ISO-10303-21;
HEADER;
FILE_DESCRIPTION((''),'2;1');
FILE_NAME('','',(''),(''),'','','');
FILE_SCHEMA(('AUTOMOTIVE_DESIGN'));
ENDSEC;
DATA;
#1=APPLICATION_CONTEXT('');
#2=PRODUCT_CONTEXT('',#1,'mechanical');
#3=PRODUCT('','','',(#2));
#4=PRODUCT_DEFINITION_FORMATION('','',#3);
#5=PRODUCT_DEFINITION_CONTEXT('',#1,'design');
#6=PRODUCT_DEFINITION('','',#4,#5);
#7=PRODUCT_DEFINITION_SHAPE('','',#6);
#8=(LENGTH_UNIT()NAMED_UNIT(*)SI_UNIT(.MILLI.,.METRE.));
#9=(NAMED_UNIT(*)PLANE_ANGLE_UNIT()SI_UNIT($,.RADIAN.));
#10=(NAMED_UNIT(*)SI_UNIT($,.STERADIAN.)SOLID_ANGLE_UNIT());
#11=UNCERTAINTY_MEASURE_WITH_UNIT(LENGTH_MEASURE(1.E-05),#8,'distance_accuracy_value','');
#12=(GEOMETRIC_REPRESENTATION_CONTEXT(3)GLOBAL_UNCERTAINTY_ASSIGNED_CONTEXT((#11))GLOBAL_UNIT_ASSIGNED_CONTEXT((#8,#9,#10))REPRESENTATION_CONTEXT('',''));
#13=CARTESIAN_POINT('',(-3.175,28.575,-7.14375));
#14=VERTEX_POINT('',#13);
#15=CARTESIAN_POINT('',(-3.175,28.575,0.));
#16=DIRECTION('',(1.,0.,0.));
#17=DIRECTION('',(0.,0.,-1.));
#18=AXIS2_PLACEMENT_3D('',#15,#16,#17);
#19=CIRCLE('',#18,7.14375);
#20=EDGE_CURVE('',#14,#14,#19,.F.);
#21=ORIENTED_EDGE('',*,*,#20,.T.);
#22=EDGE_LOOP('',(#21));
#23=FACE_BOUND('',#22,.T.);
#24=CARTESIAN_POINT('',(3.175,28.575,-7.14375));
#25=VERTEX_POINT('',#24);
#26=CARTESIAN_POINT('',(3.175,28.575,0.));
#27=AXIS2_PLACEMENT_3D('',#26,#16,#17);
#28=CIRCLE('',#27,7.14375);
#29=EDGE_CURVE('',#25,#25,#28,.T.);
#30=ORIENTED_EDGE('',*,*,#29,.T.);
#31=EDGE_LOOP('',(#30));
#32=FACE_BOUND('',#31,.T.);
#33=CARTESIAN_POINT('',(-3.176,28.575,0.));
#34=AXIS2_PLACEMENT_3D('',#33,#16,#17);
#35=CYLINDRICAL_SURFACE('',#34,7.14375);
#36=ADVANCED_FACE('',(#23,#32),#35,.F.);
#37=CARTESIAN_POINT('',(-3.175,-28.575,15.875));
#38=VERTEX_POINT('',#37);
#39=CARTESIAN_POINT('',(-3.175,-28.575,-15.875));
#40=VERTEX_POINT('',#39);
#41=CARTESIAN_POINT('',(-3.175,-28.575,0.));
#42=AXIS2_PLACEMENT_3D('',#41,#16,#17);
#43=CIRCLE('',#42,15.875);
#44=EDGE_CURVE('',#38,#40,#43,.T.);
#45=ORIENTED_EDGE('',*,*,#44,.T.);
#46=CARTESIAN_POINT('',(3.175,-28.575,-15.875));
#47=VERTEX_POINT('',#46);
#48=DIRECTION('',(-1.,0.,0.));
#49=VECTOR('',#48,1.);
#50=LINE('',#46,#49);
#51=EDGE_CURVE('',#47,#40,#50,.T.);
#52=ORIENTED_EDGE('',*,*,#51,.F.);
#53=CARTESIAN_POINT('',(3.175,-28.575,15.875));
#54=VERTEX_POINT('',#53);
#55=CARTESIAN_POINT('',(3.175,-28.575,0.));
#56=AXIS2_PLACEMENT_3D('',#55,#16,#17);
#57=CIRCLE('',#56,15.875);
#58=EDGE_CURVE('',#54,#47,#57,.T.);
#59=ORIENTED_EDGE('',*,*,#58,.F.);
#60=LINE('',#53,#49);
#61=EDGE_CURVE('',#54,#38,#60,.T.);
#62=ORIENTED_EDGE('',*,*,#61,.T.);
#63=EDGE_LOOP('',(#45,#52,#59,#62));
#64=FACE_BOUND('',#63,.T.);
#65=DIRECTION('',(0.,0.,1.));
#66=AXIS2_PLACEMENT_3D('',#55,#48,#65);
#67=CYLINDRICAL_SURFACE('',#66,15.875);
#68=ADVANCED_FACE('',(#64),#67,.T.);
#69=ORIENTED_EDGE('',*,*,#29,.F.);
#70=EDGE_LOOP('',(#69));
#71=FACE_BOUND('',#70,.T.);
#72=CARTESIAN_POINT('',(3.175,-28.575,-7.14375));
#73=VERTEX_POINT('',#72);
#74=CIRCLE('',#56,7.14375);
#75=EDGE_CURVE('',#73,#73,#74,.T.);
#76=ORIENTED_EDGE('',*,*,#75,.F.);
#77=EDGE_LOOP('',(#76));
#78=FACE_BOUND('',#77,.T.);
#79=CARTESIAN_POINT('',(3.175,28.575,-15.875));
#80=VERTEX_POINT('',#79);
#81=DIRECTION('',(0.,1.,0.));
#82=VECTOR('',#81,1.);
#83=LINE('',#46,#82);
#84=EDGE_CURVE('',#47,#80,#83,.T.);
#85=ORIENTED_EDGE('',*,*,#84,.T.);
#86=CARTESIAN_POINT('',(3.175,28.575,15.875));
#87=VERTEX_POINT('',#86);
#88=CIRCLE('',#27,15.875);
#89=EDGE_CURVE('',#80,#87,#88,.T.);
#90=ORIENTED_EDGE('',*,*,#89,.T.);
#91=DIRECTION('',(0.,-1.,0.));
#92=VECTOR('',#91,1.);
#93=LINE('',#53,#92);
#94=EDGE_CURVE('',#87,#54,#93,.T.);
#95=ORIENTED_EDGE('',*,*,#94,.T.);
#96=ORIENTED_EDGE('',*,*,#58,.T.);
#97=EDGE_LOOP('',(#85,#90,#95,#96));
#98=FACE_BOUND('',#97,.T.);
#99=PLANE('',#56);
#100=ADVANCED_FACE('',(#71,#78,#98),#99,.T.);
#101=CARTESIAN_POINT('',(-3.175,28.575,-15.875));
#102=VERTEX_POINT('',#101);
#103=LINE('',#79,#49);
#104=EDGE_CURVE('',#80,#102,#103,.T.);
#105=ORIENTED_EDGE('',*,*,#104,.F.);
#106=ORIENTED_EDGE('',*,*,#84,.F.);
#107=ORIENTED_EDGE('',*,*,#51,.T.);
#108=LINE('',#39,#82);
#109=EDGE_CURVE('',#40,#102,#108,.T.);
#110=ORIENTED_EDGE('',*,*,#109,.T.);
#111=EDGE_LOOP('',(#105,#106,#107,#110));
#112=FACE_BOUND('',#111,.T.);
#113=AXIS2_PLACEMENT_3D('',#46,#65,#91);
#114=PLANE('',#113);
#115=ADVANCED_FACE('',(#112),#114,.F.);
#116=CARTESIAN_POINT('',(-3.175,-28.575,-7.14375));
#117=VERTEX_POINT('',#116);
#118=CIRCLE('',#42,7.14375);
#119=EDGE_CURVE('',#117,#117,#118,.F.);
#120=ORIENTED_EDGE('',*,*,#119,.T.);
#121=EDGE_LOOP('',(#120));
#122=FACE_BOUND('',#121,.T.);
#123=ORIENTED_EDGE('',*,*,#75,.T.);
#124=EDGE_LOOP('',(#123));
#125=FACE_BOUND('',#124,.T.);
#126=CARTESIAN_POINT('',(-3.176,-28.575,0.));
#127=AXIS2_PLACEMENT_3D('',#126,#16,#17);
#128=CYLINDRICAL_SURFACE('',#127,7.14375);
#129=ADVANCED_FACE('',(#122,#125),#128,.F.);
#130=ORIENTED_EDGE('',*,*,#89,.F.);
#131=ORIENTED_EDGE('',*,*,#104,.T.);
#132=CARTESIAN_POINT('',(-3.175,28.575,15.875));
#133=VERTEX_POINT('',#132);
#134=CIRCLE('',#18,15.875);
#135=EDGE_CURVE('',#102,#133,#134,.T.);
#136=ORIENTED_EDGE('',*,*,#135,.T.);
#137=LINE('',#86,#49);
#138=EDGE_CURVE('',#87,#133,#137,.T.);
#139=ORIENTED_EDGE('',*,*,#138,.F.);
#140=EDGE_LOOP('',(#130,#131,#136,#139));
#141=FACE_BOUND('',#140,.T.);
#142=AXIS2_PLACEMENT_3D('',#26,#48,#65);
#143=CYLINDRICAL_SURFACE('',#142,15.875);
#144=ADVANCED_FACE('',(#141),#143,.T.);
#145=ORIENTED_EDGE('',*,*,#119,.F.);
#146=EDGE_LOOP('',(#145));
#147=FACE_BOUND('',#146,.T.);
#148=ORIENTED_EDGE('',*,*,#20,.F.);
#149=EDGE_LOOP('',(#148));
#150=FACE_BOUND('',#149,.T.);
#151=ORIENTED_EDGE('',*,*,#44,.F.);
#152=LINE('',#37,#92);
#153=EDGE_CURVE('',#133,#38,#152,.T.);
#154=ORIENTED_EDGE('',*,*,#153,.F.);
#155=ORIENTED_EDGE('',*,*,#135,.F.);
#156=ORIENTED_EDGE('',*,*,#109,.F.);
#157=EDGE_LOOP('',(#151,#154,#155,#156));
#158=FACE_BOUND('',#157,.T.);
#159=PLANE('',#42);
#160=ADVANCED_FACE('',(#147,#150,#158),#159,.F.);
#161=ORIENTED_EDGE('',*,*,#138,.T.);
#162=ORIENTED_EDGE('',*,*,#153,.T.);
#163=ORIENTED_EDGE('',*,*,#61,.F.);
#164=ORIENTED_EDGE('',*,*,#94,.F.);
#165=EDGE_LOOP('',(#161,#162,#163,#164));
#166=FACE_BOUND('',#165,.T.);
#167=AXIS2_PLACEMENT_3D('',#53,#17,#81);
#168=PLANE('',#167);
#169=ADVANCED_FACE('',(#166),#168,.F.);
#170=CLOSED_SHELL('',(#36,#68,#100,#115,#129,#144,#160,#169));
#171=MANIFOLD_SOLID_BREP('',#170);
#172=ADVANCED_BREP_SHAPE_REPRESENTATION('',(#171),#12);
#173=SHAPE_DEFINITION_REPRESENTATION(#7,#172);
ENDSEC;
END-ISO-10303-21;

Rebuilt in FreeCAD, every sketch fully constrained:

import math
import FreeCAD as App
import Part
import Sketcher
Q = App.Units.Quantity

doc = App.newDocument("Part")
params = doc.addObject("Spreadsheet::Sheet", "Params")
for row, (alias, value) in enumerate([
    ("sketch1_radius", "0.625 in"),
    ("sketch1_width", "2.25 in"),
    ("pad1_length", "0.25 in"),
    ("sketch2_diameter", "0.5625 in"),
    ("sketch3_diameter", "0.5625 in"),
], start=1):
    params.set(f"A{row}", alias)
    params.set(f"B{row}", "=" + value)
    params.setAlias(f"B{row}", alias)

body = doc.addObject("PartDesign::Body", "Body")

sketch1 = body.newObject("Sketcher::SketchObject", "Sketch")
sketch1.AttachmentSupport = (doc.getObject("YZ_Plane"), [""])
sketch1.MapMode = "FlatFace"
sketch1.addGeometry([
    Part.LineSegment(App.Vector(29, 16, 0), App.Vector(-29, 16, 0)),
    Part.ArcOfCircle(Part.Circle(App.Vector(-29, 0, 0), App.Vector(0, 0, 1), 16), math.radians(90), math.radians(270)),
    Part.LineSegment(App.Vector(-29, -16, 0), App.Vector(29, -16, 0)),
    Part.ArcOfCircle(Part.Circle(App.Vector(29, 0, 0), App.Vector(0, 0, 1), 16), math.radians(-90), math.radians(90)),
], False)
sketch1.addConstraint([
    Sketcher.Constraint("Tangent", 0, 2, 1, 1),
    Sketcher.Constraint("Tangent", 1, 2, 2, 1),
    Sketcher.Constraint("Tangent", 2, 2, 3, 1),
    Sketcher.Constraint("Tangent", 3, 2, 0, 1),
    Sketcher.Constraint("Horizontal", 0),
    Sketcher.Constraint("Horizontal", 2),
    Sketcher.Constraint("Symmetric", 1, 3, 3, 3, -1, 1),
    Sketcher.Constraint("Radius", 1, Q("0.625 in")),
    Sketcher.Constraint("DistanceX", 0, 2, 0, 1, Q("2.25 in")),
])
sketch1.setExpression("Constraints[7]", "Params.sketch1_radius")
sketch1.setExpression("Constraints[8]", "Params.sketch1_width")
pad1 = body.newObject("PartDesign::Pad", "Pad")
pad1.Profile = sketch1
pad1.setExpression("Length", "Params.pad1_length")
pad1.Midplane = True

sketch2 = body.newObject("Sketcher::SketchObject", "Sketch001")
sketch2.AttachmentSupport = (doc.getObject("YZ_Plane"), [""])
sketch2.MapMode = "FlatFace"
sketch2.AttachmentOffset = App.Placement(App.Vector(0, 0, 0.125 * 25.4), App.Rotation())
sketch2.addGeometry(Part.Circle(App.Vector(29, 0, 0), App.Vector(0, 0, 1), 7), False)
sketch2.addConstraint([
    Sketcher.Constraint("PointOnObject", 0, 3, -1),
    Sketcher.Constraint("Diameter", 0, Q("0.5625 in")),
    Sketcher.Constraint("DistanceX", -1, 1, 0, 3, Q("1.125 in")),
])
sketch2.setExpression("Constraints[1]", "Params.sketch2_diameter")
pocket1 = body.newObject("PartDesign::Pocket", "Pocket")
pocket1.Profile = sketch2
pocket1.Type = "UpToFirst"

sketch3 = body.newObject("Sketcher::SketchObject", "Sketch002")
sketch3.AttachmentSupport = (doc.getObject("YZ_Plane"), [""])
sketch3.MapMode = "FlatFace"
sketch3.AttachmentOffset = App.Placement(App.Vector(0, 0, 0.125 * 25.4), App.Rotation())
sketch3.addGeometry(Part.Circle(App.Vector(-29, 0, 0), App.Vector(0, 0, 1), 7), False)
sketch3.addConstraint([
    Sketcher.Constraint("PointOnObject", 0, 3, -1),
    Sketcher.Constraint("Diameter", 0, Q("0.5625 in")),
    Sketcher.Constraint("DistanceX", 0, 3, -1, 1, Q("1.125 in")),
])
sketch3.setExpression("Constraints[1]", "Params.sketch3_diameter")
pocket2 = body.newObject("PartDesign::Pocket", "Pocket001")
pocket2.Profile = sketch3
pocket2.Type = "UpToFirst"

doc.recompute()
